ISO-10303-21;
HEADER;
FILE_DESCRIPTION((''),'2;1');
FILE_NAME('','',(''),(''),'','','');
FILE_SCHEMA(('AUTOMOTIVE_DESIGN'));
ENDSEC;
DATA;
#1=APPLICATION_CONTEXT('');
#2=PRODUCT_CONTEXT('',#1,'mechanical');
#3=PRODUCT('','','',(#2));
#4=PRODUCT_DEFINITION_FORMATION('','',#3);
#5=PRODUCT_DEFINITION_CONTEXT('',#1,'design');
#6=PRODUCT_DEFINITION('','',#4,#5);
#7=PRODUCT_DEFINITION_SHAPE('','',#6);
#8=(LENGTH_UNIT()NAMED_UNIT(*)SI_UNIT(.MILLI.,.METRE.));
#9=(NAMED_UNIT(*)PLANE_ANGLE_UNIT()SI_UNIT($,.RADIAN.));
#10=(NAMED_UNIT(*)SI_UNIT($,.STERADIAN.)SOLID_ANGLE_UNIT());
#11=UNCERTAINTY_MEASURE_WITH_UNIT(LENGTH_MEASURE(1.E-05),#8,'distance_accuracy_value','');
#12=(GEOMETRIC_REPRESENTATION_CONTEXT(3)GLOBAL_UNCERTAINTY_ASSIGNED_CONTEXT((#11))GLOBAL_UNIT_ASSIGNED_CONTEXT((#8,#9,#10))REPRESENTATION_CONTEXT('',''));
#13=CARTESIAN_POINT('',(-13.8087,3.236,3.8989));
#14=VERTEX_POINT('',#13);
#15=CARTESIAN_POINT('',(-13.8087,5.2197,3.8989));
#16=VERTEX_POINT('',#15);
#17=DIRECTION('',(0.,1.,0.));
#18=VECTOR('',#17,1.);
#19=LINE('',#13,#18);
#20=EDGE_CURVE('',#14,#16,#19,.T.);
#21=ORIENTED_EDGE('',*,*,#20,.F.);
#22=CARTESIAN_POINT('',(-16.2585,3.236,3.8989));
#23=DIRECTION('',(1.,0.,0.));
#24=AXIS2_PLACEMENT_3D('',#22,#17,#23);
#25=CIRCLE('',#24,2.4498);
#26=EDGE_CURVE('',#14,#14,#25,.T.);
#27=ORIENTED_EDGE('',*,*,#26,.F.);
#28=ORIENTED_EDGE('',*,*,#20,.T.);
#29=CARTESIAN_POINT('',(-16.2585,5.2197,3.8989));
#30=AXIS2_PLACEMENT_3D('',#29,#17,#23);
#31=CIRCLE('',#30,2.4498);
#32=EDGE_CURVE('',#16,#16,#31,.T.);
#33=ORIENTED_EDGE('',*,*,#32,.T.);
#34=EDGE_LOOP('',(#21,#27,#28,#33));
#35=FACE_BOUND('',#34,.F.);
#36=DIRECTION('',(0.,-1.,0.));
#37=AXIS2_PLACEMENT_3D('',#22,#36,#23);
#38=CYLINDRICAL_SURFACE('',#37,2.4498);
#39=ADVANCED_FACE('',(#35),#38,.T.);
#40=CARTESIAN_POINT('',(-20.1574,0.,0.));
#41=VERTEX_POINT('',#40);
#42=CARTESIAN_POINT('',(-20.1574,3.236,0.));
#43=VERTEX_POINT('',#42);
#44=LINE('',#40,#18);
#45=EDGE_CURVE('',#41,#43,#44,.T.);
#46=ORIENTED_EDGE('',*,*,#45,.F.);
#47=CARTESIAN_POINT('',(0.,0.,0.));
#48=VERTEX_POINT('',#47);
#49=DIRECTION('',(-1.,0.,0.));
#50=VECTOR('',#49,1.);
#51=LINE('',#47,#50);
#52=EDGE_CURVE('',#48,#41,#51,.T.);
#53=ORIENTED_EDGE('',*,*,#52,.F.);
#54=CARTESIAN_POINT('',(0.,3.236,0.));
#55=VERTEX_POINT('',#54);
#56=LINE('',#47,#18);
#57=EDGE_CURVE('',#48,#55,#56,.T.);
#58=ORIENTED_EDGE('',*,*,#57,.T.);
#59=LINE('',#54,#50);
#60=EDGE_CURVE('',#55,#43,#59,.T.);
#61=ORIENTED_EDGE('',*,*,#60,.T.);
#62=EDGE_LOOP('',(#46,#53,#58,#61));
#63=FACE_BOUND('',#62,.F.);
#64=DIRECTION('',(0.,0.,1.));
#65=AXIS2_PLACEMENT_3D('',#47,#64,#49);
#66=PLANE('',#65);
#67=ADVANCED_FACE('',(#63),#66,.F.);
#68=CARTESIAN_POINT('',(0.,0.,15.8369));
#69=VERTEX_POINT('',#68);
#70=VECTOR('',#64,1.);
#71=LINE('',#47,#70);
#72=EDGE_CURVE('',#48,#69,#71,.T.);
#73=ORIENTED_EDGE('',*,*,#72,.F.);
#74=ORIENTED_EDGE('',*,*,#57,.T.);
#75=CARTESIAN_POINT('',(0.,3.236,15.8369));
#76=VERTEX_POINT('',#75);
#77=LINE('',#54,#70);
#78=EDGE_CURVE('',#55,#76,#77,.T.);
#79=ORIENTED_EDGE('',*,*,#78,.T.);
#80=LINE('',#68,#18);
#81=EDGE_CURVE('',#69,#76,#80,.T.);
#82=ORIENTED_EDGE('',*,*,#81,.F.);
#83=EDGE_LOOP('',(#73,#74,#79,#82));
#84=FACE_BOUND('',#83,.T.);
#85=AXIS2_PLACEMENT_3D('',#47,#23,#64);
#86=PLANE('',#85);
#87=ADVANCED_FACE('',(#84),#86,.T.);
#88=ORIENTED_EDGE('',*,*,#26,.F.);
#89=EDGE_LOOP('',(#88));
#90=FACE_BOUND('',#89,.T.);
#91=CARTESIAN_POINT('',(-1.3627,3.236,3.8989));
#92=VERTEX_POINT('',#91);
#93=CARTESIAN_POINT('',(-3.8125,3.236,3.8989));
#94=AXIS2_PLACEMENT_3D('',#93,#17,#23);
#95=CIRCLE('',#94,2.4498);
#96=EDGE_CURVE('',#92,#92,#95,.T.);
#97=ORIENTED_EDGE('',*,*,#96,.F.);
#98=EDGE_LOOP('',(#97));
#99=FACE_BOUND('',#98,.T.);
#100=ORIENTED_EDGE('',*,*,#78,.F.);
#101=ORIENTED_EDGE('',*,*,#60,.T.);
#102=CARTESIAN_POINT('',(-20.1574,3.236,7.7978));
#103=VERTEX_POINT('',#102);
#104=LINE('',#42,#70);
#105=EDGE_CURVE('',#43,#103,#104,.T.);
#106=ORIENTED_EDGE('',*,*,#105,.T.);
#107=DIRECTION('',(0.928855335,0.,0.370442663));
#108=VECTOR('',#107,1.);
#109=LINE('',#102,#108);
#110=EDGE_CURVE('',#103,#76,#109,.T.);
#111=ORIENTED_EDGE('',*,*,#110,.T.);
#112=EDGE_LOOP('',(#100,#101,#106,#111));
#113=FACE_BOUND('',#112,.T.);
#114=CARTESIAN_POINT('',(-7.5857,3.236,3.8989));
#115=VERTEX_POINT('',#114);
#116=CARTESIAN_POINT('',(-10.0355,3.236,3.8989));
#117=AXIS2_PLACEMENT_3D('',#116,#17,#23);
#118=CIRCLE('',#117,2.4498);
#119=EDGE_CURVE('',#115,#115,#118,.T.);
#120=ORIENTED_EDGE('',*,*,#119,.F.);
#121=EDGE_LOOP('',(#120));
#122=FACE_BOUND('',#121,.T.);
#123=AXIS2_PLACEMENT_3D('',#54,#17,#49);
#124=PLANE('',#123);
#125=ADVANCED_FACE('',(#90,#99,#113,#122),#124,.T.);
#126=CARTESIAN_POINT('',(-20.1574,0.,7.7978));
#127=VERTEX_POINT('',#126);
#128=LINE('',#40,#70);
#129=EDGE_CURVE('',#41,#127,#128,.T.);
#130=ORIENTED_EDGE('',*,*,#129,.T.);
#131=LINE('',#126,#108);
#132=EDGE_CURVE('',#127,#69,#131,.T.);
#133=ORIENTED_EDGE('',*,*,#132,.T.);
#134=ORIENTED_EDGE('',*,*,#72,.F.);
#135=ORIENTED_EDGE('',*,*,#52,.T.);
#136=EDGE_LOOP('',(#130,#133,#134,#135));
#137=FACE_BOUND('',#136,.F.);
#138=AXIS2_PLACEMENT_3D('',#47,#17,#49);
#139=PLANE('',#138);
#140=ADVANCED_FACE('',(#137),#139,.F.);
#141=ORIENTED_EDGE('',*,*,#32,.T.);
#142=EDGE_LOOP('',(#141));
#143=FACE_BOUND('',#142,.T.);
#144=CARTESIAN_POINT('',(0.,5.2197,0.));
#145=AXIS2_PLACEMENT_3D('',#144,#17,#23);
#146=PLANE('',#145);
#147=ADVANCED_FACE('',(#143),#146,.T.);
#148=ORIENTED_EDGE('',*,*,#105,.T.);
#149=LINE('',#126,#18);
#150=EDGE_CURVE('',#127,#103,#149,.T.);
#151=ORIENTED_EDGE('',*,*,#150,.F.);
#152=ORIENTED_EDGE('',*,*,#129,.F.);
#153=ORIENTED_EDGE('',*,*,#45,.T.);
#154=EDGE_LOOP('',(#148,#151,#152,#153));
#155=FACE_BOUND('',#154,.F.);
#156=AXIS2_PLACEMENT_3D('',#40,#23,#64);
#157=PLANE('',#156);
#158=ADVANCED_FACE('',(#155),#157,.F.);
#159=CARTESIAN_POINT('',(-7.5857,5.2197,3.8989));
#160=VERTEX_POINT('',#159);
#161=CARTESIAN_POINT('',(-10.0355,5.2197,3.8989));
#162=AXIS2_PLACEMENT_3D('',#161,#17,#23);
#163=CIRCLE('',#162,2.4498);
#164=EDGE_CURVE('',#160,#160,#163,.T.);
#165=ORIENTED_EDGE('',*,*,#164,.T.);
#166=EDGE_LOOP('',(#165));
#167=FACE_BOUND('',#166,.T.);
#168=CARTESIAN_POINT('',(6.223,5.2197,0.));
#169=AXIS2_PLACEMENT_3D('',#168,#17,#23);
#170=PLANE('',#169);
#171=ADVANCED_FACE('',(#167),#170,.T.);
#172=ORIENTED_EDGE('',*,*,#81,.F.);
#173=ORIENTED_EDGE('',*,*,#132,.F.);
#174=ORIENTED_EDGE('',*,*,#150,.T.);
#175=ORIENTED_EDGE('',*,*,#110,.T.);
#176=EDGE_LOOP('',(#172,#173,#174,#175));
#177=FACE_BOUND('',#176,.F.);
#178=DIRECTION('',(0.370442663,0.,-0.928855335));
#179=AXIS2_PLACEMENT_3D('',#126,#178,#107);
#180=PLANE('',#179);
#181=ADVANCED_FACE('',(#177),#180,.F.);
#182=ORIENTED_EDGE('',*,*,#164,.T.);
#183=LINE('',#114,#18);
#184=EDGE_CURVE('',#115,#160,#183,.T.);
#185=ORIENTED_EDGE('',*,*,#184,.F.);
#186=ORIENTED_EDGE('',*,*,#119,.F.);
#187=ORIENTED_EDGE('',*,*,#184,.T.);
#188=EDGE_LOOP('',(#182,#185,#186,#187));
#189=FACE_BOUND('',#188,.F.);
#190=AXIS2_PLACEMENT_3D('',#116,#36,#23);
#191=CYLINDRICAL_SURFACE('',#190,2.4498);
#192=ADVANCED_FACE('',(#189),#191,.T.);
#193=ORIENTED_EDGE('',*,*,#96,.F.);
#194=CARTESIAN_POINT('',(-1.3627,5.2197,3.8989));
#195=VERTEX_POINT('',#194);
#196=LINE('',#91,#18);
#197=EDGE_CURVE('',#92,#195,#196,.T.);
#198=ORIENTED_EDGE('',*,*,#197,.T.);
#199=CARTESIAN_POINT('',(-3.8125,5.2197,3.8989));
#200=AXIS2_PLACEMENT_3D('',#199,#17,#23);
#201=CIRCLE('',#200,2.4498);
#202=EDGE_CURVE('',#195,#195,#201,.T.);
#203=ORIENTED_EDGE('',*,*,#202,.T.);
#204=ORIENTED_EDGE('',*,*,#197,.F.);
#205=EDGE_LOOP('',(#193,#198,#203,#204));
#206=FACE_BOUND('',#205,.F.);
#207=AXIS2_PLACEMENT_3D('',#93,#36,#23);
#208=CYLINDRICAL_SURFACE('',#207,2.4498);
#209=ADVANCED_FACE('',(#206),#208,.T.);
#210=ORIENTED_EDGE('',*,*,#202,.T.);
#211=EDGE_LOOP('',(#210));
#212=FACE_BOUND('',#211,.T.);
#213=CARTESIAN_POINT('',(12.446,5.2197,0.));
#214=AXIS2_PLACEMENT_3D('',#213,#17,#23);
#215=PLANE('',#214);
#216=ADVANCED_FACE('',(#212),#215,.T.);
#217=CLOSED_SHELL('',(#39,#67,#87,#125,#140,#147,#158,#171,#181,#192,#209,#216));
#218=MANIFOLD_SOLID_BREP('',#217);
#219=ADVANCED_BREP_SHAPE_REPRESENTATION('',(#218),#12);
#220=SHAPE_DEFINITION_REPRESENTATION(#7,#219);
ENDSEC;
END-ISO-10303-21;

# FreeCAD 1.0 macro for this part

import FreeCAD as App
import Part
import Sketcher
Q = App.Units.Quantity

doc = App.newDocument("Part")
body = doc.addObject("PartDesign::Body", "Body")

# Sketch on XZ plane
sketch1 = body.newObject("Sketcher::SketchObject", "Sketch")
sketch1.AttachmentSupport = (doc.getObject("XZ_Plane"), [""])
sketch1.MapMode = "FlatFace"
sketch1.addGeometry([
    Part.LineSegment(App.Vector(0, 16, 0), App.Vector(0, 0, 0)),
    Part.LineSegment(App.Vector(0, 0, 0), App.Vector(-20, 0, 0)),
    Part.LineSegment(App.Vector(-20, 0, 0), App.Vector(-20, 8, 0)),
    Part.LineSegment(App.Vector(-20, 8, 0), App.Vector(0, 16, 0)),
], False)
sketch1.addConstraint([
    Sketcher.Constraint("Coincident", 0, 2, 1, 1),
    Sketcher.Constraint("Coincident", 1, 2, 2, 1),
    Sketcher.Constraint("Coincident", 2, 2, 3, 1),
    Sketcher.Constraint("Coincident", 3, 2, 0, 1),
    Sketcher.Constraint("Vertical", 0),
    Sketcher.Constraint("Horizontal", 1),
    Sketcher.Constraint("Vertical", 2),
    Sketcher.Constraint("Coincident", 0, 2, -1, 1),
    Sketcher.Constraint("DistanceY", 2, 1, 2, 2, Q("0.307 in")),
    Sketcher.Constraint("DistanceX", 1, 2, 1, 1, Q("0.7936 in")),
    Sketcher.Constraint("DistanceY", 0, 2, 0, 1, Q("0.6235 in")),
])
pad1 = body.newObject("PartDesign::Pad", "Pad")
pad1.Profile = sketch1
pad1.Length = Q("0.1274016 in")
pad1.Reversed = True

# Sketch on XZ plane
sketch2 = body.newObject("Sketcher::SketchObject", "Sketch001")
sketch2.AttachmentSupport = (doc.getObject("XZ_Plane"), [""])
sketch2.MapMode = "FlatFace"
sketch2.AttachmentOffset = App.Placement(App.Vector(0, 0, -0.1274016 * 25.4), App.Rotation())
sketch2.addGeometry(Part.Circle(App.Vector(-16.3, 3.9, 0), App.Vector(0, 0, 1), 2.4), False)
sketch2.addConstraint([
    Sketcher.Constraint("Diameter", 0, Q("0.1929 in")),
    Sketcher.Constraint("DistanceX", 0, 3, -1, 1, Q("0.6401 in")),
    Sketcher.Constraint("DistanceY", -1, 1, 0, 3, Q("0.1535 in")),
])
pad2 = body.newObject("PartDesign::Pad", "Pad001")
pad2.Profile = sketch2
pad2.Length = Q("0.0780984 in")
pad2.Reversed = True
doc.recompute()

linearpattern = body.newObject("PartDesign::LinearPattern", "LinearPattern")
linearpattern.Originals = [pad2]
linearpattern.Direction = (doc.getObject("X_Axis"), [""])
linearpattern.Mode = "offset"
linearpattern.Offset = Q("0.245 in")
linearpattern.Occurrences = 3
body.Tip = linearpattern

doc.recompute()
